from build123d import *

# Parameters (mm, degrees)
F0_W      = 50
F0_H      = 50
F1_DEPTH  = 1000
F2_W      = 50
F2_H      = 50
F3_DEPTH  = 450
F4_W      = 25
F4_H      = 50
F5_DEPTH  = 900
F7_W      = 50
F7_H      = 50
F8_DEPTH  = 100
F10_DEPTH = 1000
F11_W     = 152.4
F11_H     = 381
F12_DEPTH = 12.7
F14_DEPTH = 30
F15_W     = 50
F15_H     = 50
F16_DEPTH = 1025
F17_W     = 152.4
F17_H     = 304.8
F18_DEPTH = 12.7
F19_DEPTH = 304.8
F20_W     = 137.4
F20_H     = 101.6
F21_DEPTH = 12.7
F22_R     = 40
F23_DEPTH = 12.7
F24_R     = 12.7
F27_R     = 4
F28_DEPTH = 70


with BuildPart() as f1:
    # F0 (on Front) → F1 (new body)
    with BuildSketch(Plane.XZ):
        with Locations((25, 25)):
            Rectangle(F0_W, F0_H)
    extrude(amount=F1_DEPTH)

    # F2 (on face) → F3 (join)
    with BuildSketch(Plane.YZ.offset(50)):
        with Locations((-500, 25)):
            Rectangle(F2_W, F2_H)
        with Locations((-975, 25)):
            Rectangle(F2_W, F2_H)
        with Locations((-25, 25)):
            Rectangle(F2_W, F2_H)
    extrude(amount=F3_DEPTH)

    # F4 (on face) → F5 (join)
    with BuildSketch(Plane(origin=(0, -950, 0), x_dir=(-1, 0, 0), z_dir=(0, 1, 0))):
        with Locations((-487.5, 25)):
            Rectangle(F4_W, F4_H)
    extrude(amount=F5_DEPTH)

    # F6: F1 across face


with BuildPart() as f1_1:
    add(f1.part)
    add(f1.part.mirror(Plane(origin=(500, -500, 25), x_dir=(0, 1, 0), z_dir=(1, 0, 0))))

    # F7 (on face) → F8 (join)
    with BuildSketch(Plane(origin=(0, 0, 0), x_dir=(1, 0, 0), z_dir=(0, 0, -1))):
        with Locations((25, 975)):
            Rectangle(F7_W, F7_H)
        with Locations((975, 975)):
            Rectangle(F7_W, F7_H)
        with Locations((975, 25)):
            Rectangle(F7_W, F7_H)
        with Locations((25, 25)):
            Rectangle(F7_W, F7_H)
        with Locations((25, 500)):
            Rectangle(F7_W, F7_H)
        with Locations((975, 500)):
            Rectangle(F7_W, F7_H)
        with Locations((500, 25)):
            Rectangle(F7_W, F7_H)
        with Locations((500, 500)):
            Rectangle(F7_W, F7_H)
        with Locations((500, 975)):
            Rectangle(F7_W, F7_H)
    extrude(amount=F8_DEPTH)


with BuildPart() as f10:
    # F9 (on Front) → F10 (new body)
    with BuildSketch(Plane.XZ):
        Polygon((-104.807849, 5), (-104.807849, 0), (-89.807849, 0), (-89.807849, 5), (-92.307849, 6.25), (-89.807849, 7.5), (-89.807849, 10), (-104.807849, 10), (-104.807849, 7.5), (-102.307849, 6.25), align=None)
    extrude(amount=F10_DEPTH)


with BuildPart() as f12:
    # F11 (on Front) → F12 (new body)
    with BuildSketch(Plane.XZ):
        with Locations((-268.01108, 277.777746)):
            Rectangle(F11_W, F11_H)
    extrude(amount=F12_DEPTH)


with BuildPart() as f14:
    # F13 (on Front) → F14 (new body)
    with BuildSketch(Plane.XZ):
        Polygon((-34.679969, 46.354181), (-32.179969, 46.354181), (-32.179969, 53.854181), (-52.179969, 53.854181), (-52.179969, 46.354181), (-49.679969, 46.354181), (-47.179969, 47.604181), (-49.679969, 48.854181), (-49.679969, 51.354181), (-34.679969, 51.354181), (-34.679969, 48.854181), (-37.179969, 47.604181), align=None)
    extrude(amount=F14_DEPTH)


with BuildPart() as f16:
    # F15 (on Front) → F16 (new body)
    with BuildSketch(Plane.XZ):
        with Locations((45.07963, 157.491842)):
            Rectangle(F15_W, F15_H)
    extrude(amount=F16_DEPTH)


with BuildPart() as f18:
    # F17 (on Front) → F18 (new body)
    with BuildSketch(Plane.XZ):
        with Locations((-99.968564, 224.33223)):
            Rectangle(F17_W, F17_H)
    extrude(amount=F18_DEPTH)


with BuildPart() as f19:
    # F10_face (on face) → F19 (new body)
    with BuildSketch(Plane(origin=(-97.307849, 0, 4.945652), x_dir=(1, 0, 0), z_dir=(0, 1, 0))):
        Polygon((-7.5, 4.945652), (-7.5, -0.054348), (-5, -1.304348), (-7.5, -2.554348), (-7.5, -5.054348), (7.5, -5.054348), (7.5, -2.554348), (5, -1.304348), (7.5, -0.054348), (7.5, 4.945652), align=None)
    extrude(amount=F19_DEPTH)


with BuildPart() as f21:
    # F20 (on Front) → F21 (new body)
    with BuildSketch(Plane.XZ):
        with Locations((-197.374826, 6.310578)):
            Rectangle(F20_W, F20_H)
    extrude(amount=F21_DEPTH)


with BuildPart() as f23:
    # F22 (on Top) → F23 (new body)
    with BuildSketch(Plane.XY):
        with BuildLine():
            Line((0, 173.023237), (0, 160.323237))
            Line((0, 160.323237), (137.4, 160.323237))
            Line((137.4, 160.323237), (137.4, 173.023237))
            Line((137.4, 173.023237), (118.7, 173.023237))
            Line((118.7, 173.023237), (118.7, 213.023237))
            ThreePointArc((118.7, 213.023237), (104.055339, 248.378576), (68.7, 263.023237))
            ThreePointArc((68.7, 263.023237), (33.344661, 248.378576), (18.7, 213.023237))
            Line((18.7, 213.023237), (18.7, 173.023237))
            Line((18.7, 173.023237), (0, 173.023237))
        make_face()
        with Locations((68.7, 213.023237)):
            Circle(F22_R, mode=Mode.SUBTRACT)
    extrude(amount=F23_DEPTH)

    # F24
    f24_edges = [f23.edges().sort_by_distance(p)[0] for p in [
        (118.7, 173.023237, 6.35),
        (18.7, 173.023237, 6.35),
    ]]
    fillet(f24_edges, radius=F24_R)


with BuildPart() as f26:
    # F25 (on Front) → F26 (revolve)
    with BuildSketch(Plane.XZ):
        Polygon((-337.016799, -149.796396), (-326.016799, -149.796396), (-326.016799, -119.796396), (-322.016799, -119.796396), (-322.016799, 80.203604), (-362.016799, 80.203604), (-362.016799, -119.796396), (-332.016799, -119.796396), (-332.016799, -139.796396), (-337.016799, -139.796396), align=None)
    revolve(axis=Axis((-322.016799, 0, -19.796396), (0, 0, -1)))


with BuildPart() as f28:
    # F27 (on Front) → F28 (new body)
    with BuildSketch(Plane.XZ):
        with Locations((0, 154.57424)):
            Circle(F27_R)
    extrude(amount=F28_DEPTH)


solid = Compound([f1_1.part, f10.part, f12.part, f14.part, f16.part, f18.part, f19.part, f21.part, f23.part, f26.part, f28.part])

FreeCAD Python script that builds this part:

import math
import FreeCAD as App
import Part
import Sketcher
from FreeCAD import Vector


def edges_at(feature, points):
    """Names of the edges that pass closest to the given points."""
    edges = feature.Shape.Edges
    near = lambda p: min(range(len(edges)), key=lambda i: edges[i].distToShape(Part.Vertex(*p))[0])
    return sorted({f"Edge{near(p) + 1}" for p in points})

doc = App.newDocument("Part")
body = doc.addObject("PartDesign::Body", "Body")

# Sketch on XZ plane
sketch1 = doc.addObject("Sketcher::SketchObject", "Sketch")
body.addObject(sketch1)
sketch1.AttachmentSupport = (doc.XZ_Plane, [""])
sketch1.MapMode = "FlatFace"
sketch1.addGeometry([
    Part.LineSegment(Vector(0, 50, 0), Vector(0, 0, 0)),
    Part.LineSegment(Vector(0, 0, 0), Vector(50, 0, 0)),
    Part.LineSegment(Vector(50, 0, 0), Vector(50, 50, 0)),
    Part.LineSegment(Vector(50, 50, 0), Vector(0, 50, 0)),
], False)
sketch1.addConstraint([
    Sketcher.Constraint("Coincident", 0, 2, 1, 1),
    Sketcher.Constraint("Coincident", 1, 2, 2, 1),
    Sketcher.Constraint("Coincident", 2, 2, 3, 1),
    Sketcher.Constraint("Coincident", 3, 2, 0, 1),
    Sketcher.Constraint("Vertical", 0),
    Sketcher.Constraint("Horizontal", 1),
    Sketcher.Constraint("Vertical", 2),
    Sketcher.Constraint("Horizontal", 3),
    Sketcher.Constraint("Coincident", 0, 2, -1, 1),
    Sketcher.Constraint("Equal", 3, 0),
    Sketcher.Constraint("DistanceX", 1, 1, 1, 2, 50.0),
])
pad1 = doc.addObject("PartDesign::Pad", "Pad")
body.addObject(pad1)
pad1.Profile = sketch1
pad1.Length = 1000

# Sketch on YZ plane
sketch2 = doc.addObject("Sketcher::SketchObject", "Sketch001")
body.addObject(sketch2)
sketch2.AttachmentSupport = (doc.YZ_Plane, [""])
sketch2.MapMode = "FlatFace"
sketch2.AttachmentOffset = App.Placement(Vector(0, 0, 50), App.Rotation())
sketch2.addGeometry([
    Part.LineSegment(Vector(-525, 50, 0), Vector(-525, 0, 0)),  # 0
    Part.LineSegment(Vector(-525, 0, 0), Vector(-475, 0, 0)),  # 1
    Part.LineSegment(Vector(-475, 0, 0), Vector(-475, 50, 0)),  # 2
    Part.LineSegment(Vector(-475, 50, 0), Vector(-525, 50, 0)),  # 3
    Part.LineSegment(Vector(-1000, 50, 0), Vector(-1000, 0, 0)),  # 4
    Part.LineSegment(Vector(-1000, 0, 0), Vector(-950, 0, 0)),  # 5
    Part.LineSegment(Vector(-950, 0, 0), Vector(-950, 50, 0)),  # 6
    Part.LineSegment(Vector(-950, 50, 0), Vector(-1000, 50, 0)),  # 7
    Part.LineSegment(Vector(-50, 50, 0), Vector(-50, 0, 0)),  # 8
    Part.LineSegment(Vector(-50, 0, 0), Vector(0, 0, 0)),  # 9
    Part.LineSegment(Vector(0, 0, 0), Vector(0, 50, 0)),  # 10
    Part.LineSegment(Vector(0, 50, 0), Vector(-50, 50, 0)),  # 11
], False)
sketch2.addConstraint([
    Sketcher.Constraint("Coincident", 0, 2, 1, 1),
    Sketcher.Constraint("Coincident", 1, 2, 2, 1),
    Sketcher.Constraint("Coincident", 2, 2, 3, 1),
    Sketcher.Constraint("Coincident", 3, 2, 0, 1),
    Sketcher.Constraint("Coincident", 4, 2, 5, 1),
    Sketcher.Constraint("Coincident", 5, 2, 6, 1),
    Sketcher.Constraint("Coincident", 6, 2, 7, 1),
    Sketcher.Constraint("Coincident", 7, 2, 4, 1),
    Sketcher.Constraint("Coincident", 8, 2, 9, 1),
    Sketcher.Constraint("Coincident", 9, 2, 10, 1),
    Sketcher.Constraint("Coincident", 10, 2, 11, 1),
    Sketcher.Constraint("Coincident", 11, 2, 8, 1),
    Sketcher.Constraint("Vertical", 0),
    Sketcher.Constraint("Horizontal", 1),
    Sketcher.Constraint("Vertical", 2),
    Sketcher.Constraint("Horizontal", 3),
    Sketcher.Constraint("Vertical", 4),
    Sketcher.Constraint("Horizontal", 5),
    Sketcher.Constraint("Vertical", 6),
    Sketcher.Constraint("Horizontal", 7),
    Sketcher.Constraint("Vertical", 8),
    Sketcher.Constraint("Horizontal", 9),
    Sketcher.Constraint("Vertical", 10),
    Sketcher.Constraint("Horizontal", 11),
    Sketcher.Constraint("Coincident", 9, 2, -1, 1),
    Sketcher.Constraint("PointOnObject", 0, 2, -1),
    Sketcher.Constraint("PointOnObject", 4, 2, -1),
    Sketcher.Constraint("Horizontal", 3, 2, 6, 2),
    Sketcher.Constraint("Horizontal", 7, 2, 10, 2),
    Sketcher.Constraint("Equal", 3, 5),
    Sketcher.Constraint("Equal", 7, 9),
    Sketcher.Constraint("Equal", 11, 0),
    Sketcher.Constraint("DistanceX", 1, 1, 1, 2, 50.0),
    Sketcher.Constraint("DistanceX", 0, 2, -1, 1, 525.0),
    Sketcher.Constraint("DistanceX", 4, 2, -1, 1, 1000.0),
])
pad2 = doc.addObject("PartDesign::Pad", "Pad001")
body.addObject(pad2)
pad2.Profile = sketch2
pad2.Length = 450

# Sketch on XZ plane
sketch3 = doc.addObject("Sketcher::SketchObject", "Sketch002")
body.addObject(sketch3)
sketch3.AttachmentSupport = (doc.XZ_Plane, [""])
sketch3.MapMode = "FlatFace"
sketch3.AttachmentOffset = App.Placement(Vector(0, 0, 950), App.Rotation())
sketch3.addGeometry([
    Part.LineSegment(Vector(500, 50, 0), Vector(500, 0, 0)),
    Part.LineSegment(Vector(500, 0, 0), Vector(475, 0, 0)),
    Part.LineSegment(Vector(475, 0, 0), Vector(475, 50, 0)),
    Part.LineSegment(Vector(475, 50, 0), Vector(500, 50, 0)),
], False)
sketch3.addConstraint([
    Sketcher.Constraint("Coincident", 0, 2, 1, 1),
    Sketcher.Constraint("Coincident", 1, 2, 2, 1),
    Sketcher.Constraint("Coincident", 2, 2, 3, 1),
    Sketcher.Constraint("Coincident", 3, 2, 0, 1),
    Sketcher.Constraint("Vertical", 0),
    Sketcher.Constraint("Horizontal", 1),
    Sketcher.Constraint("Vertical", 2),
    Sketcher.Constraint("Horizontal", 3),
    Sketcher.Constraint("PointOnObject", 0, 2, -1),
    Sketcher.Constraint("DistanceX", 1, 2, 1, 1, 25.0),
    Sketcher.Constraint("DistanceY", 0, 2, 0, 1, 50.0),
    Sketcher.Constraint("DistanceX", -1, 1, 0, 2, 500.0),
])
pad3 = doc.addObject("PartDesign::Pad", "Pad002")
body.addObject(pad3)
pad3.Profile = sketch3
pad3.Length = 900
pad3.Reversed = True
body2 = doc.addObject("PartDesign::Body", "Body001")
doc.recompute()

body2.BaseFeature = body
doc.recompute()

mirroring = doc.addObject("Part::Mirroring", "Mirroring")
mirroring.Source = body
mirroring.Base = Vector(500, -500, 25)
mirroring.Normal = Vector(1, 0, 0)
body3 = doc.addObject("PartDesign::Body", "Body002")
body3.BaseFeature = mirroring
boolean = doc.addObject("PartDesign::Boolean", "Boolean")
body2.addObject(boolean)
boolean.Type = "Fuse"
boolean.addObjects([body3])
doc.recompute()

# Sketch on XY plane
sketch4 = doc.addObject("Sketcher::SketchObject", "Sketch003")
body2.addObject(sketch4)
sketch4.AttachmentSupport = (doc.getObject("XY_Plane001"), [""])
sketch4.MapMode = "FlatFace"
sketch4.addGeometry([
    Part.LineSegment(Vector(0, -1000, 0), Vector(0, -950, 0)),  # 0
    Part.LineSegment(Vector(0, -950, 0), Vector(50, -950, 0)),  # 1
    Part.LineSegment(Vector(50, -950, 0), Vector(50, -1000, 0)),  # 2
    Part.LineSegment(Vector(50, -1000, 0), Vector(0, -1000, 0)),  # 3
    Part.LineSegment(Vector(950, -1000, 0), Vector(950, -950, 0)),  # 4
    Part.LineSegment(Vector(950, -950, 0), Vector(1000, -950, 0)),  # 5
    Part.LineSegment(Vector(1000, -950, 0), Vector(1000, -1000, 0)),  # 6
    Part.LineSegment(Vector(1000, -1000, 0), Vector(950, -1000, 0)),  # 7
    Part.LineSegment(Vector(950, -50, 0), Vector(950, 0, 0)),  # 8
    Part.LineSegment(Vector(950, 0, 0), Vector(1000, 0, 0)),  # 9
    Part.LineSegment(Vector(1000, 0, 0), Vector(1000, -50, 0)),  # 10
    Part.LineSegment(Vector(1000, -50, 0), Vector(950, -50, 0)),  # 11
    Part.LineSegment(Vector(0, -50, 0), Vector(0, 0, 0)),  # 12
    Part.LineSegment(Vector(0, 0, 0), Vector(50, 0, 0)),  # 13
    Part.LineSegment(Vector(50, 0, 0), Vector(50, -50, 0)),  # 14
    Part.LineSegment(Vector(50, -50, 0), Vector(0, -50, 0)),  # 15
    Part.LineSegment(Vector(0, -525, 0), Vector(0, -475, 0)),  # 16
    Part.LineSegment(Vector(0, -475, 0), Vector(50, -475, 0)),  # 17
    Part.LineSegment(Vector(50, -475, 0), Vector(50, -525, 0)),  # 18
    Part.LineSegment(Vector(50, -525, 0), Vector(0, -525, 0)),  # 19
    Part.LineSegment(Vector(950, -525, 0), Vector(950, -475, 0)),  # 20
    Part.LineSegment(Vector(950, -475, 0), Vector(1000, -475, 0)),  # 21
    Part.LineSegment(Vector(1000, -475, 0), Vector(1000, -525, 0)),  # 22
    Part.LineSegment(Vector(1000, -525, 0), Vector(950, -525, 0)),  # 23
    Part.LineSegment(Vector(475, -50, 0), Vector(475, 0, 0)),  # 24
    Part.LineSegment(Vector(475, 0, 0), Vector(525, 0, 0)),  # 25
    Part.LineSegment(Vector(525, 0, 0), Vector(525, -50, 0)),  # 26
    Part.LineSegment(Vector(525, -50, 0), Vector(475, -50, 0)),  # 27
    Part.LineSegment(Vector(475, -525, 0), Vector(475, -475, 0)),  # 28
    Part.LineSegment(Vector(475, -475, 0), Vector(525, -475, 0)),  # 29
    Part.LineSegment(Vector(525, -475, 0), Vector(525, -525, 0)),  # 30
    Part.LineSegment(Vector(525, -525, 0), Vector(475, -525, 0)),  # 31
    Part.LineSegment(Vector(475, -1000, 0), Vector(475, -950, 0)),  # 32
    Part.LineSegment(Vector(475, -950, 0), Vector(525, -950, 0)),  # 33
    Part.LineSegment(Vector(525, -950, 0), Vector(525, -1000, 0)),  # 34
    Part.LineSegment(Vector(525, -1000, 0), Vector(475, -1000, 0)),  # 35
], False)
sketch4.addConstraint([
    Sketcher.Constraint("Coincident", 0, 2, 1, 1),
    Sketcher.Constraint("Coincident", 1, 2, 2, 1),
    Sketcher.Constraint("Coincident", 2, 2, 3, 1),
    Sketcher.Constraint("Coincident", 3, 2, 0, 1),
    Sketcher.Constraint("Coincident", 4, 2, 5, 1),
    Sketcher.Constraint("Coincident", 5, 2, 6, 1),
    Sketcher.Constraint("Coincident", 6, 2, 7, 1),
    Sketcher.Constraint("Coincident", 7, 2, 4, 1),
    Sketcher.Constraint("Coincident", 8, 2, 9, 1),
    Sketcher.Constraint("Coincident", 9, 2, 10, 1),
    Sketcher.Constraint("Coincident", 10, 2, 11, 1),
    Sketcher.Constraint("Coincident", 11, 2, 8, 1),
    Sketcher.Constraint("Coincident", 12, 2, 13, 1),
    Sketcher.Constraint("Coincident", 13, 2, 14, 1),
    Sketcher.Constraint("Coincident", 14, 2, 15, 1),
    Sketcher.Constraint("Coincident", 15, 2, 12, 1),
    Sketcher.Constraint("Coincident", 16, 2, 17, 1),
    Sketcher.Constraint("Coincident", 17, 2, 18, 1),
    Sketcher.Constraint("Coincident", 18, 2, 19, 1),
    Sketcher.Constraint("Coincident", 19, 2, 16, 1),
    Sketcher.Constraint("Coincident", 20, 2, 21, 1),
    Sketcher.Constraint("Coincident", 21, 2, 22, 1),
    Sketcher.Constraint("Coincident", 22, 2, 23, 1),
    Sketcher.Constraint("Coincident", 23, 2, 20, 1),
    Sketcher.Constraint("Coincident", 24, 2, 25, 1),
    Sketcher.Constraint("Coincident", 25, 2, 26, 1),
    Sketcher.Constraint("Coincident", 26, 2, 27, 1),
    Sketcher.Constraint("Coincident", 27, 2, 24, 1),
    Sketcher.Constraint("Coincident", 28, 2, 29, 1),
    Sketcher.Constraint("Coincident", 29, 2, 30, 1),
    Sketcher.Constraint("Coincident", 30, 2, 31, 1),
    Sketcher.Constraint("Coincident", 31, 2, 28, 1),
    Sketcher.Constraint("Coincident", 32, 2, 33, 1),
    Sketcher.Constraint("Coincident", 33, 2, 34, 1),
    Sketcher.Constraint("Coincident", 34, 2, 35, 1),
    Sketcher.Constraint("Coincident", 35, 2, 32, 1),
    Sketcher.Constraint("Vertical", 0),
    Sketcher.Constraint("Horizontal", 1),
    Sketcher.Constraint("Vertical", 2),
    Sketcher.Constraint("Horizontal", 3),
    Sketcher.Constraint("Vertical", 4),
    Sketcher.Constraint("Horizontal", 5),
    Sketcher.Constraint("Vertical", 6),
    Sketcher.Constraint("Horizontal", 7),
    Sketcher.Constraint("Vertical", 8),
    Sketcher.Constraint("Horizontal", 9),
    Sketcher.Constraint("Vertical", 10),
    Sketcher.Constraint("Horizontal", 11),
    Sketcher.Constraint("Vertical", 12),
    Sketcher.Constraint("Horizontal", 13),
    Sketcher.Constraint("Vertical", 14),
    Sketcher.Constraint("Horizontal", 15),
    Sketcher.Constraint("Vertical", 16),
    Sketcher.Constraint("Horizontal", 17),
    Sketcher.Constraint("Vertical", 18),
    Sketcher.Constraint("Horizontal", 19),
    Sketcher.Constraint("Vertical", 20),
    Sketcher.Constraint("Horizontal", 21),
    Sketcher.Constraint("Vertical", 22),
    Sketcher.Constraint("Horizontal", 23),
    Sketcher.Constraint("Vertical", 24),
    Sketcher.Constraint("Horizontal", 25),
    Sketcher.Constraint("Vertical", 26),
    Sketcher.Constraint("Horizontal", 27),
    Sketcher.Constraint("Vertical", 28),
    Sketcher.Constraint("Horizontal", 29),
    Sketcher.Constraint("Vertical", 30),
    Sketcher.Constraint("Horizontal", 31),
    Sketcher.Constraint("Vertical", 32),
    Sketcher.Constraint("Horizontal", 33),
    Sketcher.Constraint("Vertical", 34),
    Sketcher.Constraint("Horizontal", 35),
    Sketcher.Constraint("Coincident", 12, 2, -1, 1),
    Sketcher.Constraint("PointOnObject", 0, 2, -2),
    Sketcher.Constraint("PointOnObject", 8, 2, -1),
    Sketcher.Constraint("PointOnObject", 16, 2, -2),
    Sketcher.Constraint("PointOnObject", 24, 2, -1),
    Sketcher.Constraint("Horizontal", 1, 2, 4, 2),
    Sketcher.Constraint("Horizontal", 3, 2, 6, 2),
    Sketcher.Constraint("Horizontal", 11, 2, 14, 2),
    Sketcher.Constraint("Horizontal", 17, 2, 20, 2),
    Sketcher.Constraint("Horizontal", 19, 2, 22, 2),
    Sketcher.Constraint("Horizontal", 15, 2, 26, 2),
    Sketcher.Constraint("Horizontal", 21, 2, 28, 2),
    Sketcher.Constraint("Horizontal", 23, 2, 30, 2),
    Sketcher.Constraint("Horizontal", 5, 2, 32, 2),
    Sketcher.Constraint("Horizontal", 7, 2, 34, 2),
    Sketcher.Constraint("Vertical", 7, 2, 8, 2),
    Sketcher.Constraint("Vertical", 6, 2, 9, 2),
    Sketcher.Constraint("Vertical", 2, 2, 13, 2),
    Sketcher.Constraint("Vertical", 14, 2, 17, 2),
    Sketcher.Constraint("Vertical", 11, 2, 20, 2),
    Sketcher.Constraint("Vertical", 10, 2, 21, 2),
    Sketcher.Constraint("Vertical", 27, 2, 28, 2),
    Sketcher.Constraint("Vertical", 26, 2, 29, 2),
    Sketcher.Constraint("Vertical", 31, 2, 32, 2),
    Sketcher.Constraint("Vertical", 30, 2, 33, 2),
    Sketcher.Constraint("Equal", 3, 5),
    Sketcher.Constraint("Equal", 23, 25),
    Sketcher.Constraint("Equal", 35, 0),
    Sketcher.Constraint("Equal", 6, 8),
    Sketcher.Constraint("Equal", 14, 16),
    Sketcher.Constraint("DistanceX", 1, 1, 1, 2, 50.0),
    Sketcher.Constraint("DistanceY", 0, 2, -1, 1, 950.0),
    Sketcher.Constraint("DistanceX", -1, 1, 4, 2, 950.0),
    Sketcher.Constraint("DistanceY", 16, 2, -1, 1, 475.0),
    Sketcher.Constraint("DistanceX", -1, 1, 24, 2, 475.0),
])
pad4 = doc.addObject("PartDesign::Pad", "Pad003")
body2.addObject(pad4)
pad4.Profile = sketch4
pad4.Length = 100
pad4.Reversed = True
body4 = doc.addObject("PartDesign::Body", "Body003")

# Sketch on XZ plane
sketch5 = doc.addObject("Sketcher::SketchObject", "Sketch004")
body4.addObject(sketch5)
sketch5.AttachmentSupport = (doc.getObject("XZ_Plane003"), [""])
sketch5.MapMode = "FlatFace"
sketch5.addGeometry([
    Part.LineSegment(Vector(-104.8, 5, 0), Vector(-104.8, 0, 0)),  # 0
    Part.LineSegment(Vector(-104.8, 0, 0), Vector(-89.8, 0, 0)),  # 1
    Part.LineSegment(Vector(-89.8, 0, 0), Vector(-89.8, 5, 0)),  # 2
    Part.LineSegment(Vector(-89.8, 5, 0), Vector(-92.3, 6.2, 0)),  # 3
    Part.LineSegment(Vector(-92.3, 6.2, 0), Vector(-89.8, 7.5, 0)),  # 4
    Part.LineSegment(Vector(-89.8, 7.5, 0), Vector(-89.8, 10, 0)),  # 5
    Part.LineSegment(Vector(-89.8, 10, 0), Vector(-104.8, 10, 0)),  # 6
    Part.LineSegment(Vector(-104.8, 10, 0), Vector(-104.8, 7.5, 0)),  # 7
    Part.LineSegment(Vector(-104.8, 7.5, 0), Vector(-102.3, 6.2, 0)),  # 8
    Part.LineSegment(Vector(-102.3, 6.2, 0), Vector(-104.8, 5, 0)),  # 9
], False)
sketch5.addConstraint([
    Sketcher.Constraint("Coincident", 0, 2, 1, 1),
    Sketcher.Constraint("Coincident", 1, 2, 2, 1),
    Sketcher.Constraint("Coincident", 2, 2, 3, 1),
    Sketcher.Constraint("Coincident", 3, 2, 4, 1),
    Sketcher.Constraint("Coincident", 4, 2, 5, 1),
    Sketcher.Constraint("Coincident", 5, 2, 6, 1),
    Sketcher.Constraint("Coincident", 6, 2, 7, 1),
    Sketcher.Constraint("Coincident", 7, 2, 8, 1),
    Sketcher.Constraint("Coincident", 8, 2, 9, 1),
    Sketcher.Constraint("Coincident", 9, 2, 0, 1),
    Sketcher.Constraint("Vertical", 0),
    Sketcher.Constraint("Horizontal", 1),
    Sketcher.Constraint("Vertical", 2),
    Sketcher.Constraint("Vertical", 5),
    Sketcher.Constraint("Horizontal", 6),
    Sketcher.Constraint("Vertical", 7),
    Sketcher.Constraint("PointOnObject", 0, 2, -1),
    Sketcher.Constraint("Parallel", 3, 8),
    Sketcher.Constraint("Parallel", 4, 9),
    Sketcher.Constraint("Horizontal", 4, 2, 7, 2),
    Sketcher.Constraint("Horizontal", 3, 2, 8, 2),
    Sketcher.Constraint("Horizontal", 2, 2, 9, 2),
    Sketcher.Constraint("Vertical", 2, 2, 4, 2),
    Sketcher.Constraint("Vertical", 0, 2, 6, 2),
    Sketcher.Constraint("DistanceX", 1, 1, 1, 2, 15.0),
    Sketcher.Constraint("DistanceY", 0, 2, 0, 1, 5.0),
    Sketcher.Constraint("DistanceY", 5, 1, 5, 2, 2.5),
    Sketcher.Constraint("DistanceY", -1, 1, 5, 2, 10.0),
    Sketcher.Constraint("DistanceX", 8, 2, 3, 2, 10.0),
    Sketcher.Constraint("DistanceX", 0, 2, -1, 1, 104.807849),
])
pad5 = doc.addObject("PartDesign::Pad", "Pad004")
body4.addObject(pad5)
pad5.Profile = sketch5
pad5.Length = 1000
body5 = doc.addObject("PartDesign::Body", "Body004")

# Sketch on XZ plane
sketch6 = doc.addObject("Sketcher::SketchObject", "Sketch005")
body5.addObject(sketch6)
sketch6.AttachmentSupport = (doc.getObject("XZ_Plane004"), [""])
sketch6.MapMode = "FlatFace"
sketch6.addGeometry([
    Part.LineSegment(Vector(-344, 468, 0), Vector(-344, 87, 0)),
    Part.LineSegment(Vector(-344, 87, 0), Vector(-192, 87, 0)),
    Part.LineSegment(Vector(-192, 87, 0), Vector(-192, 468, 0)),
    Part.LineSegment(Vector(-192, 468, 0), Vector(-344, 468, 0)),
], False)
sketch6.addConstraint([
    Sketcher.Constraint("Coincident", 0, 2, 1, 1),
    Sketcher.Constraint("Coincident", 1, 2, 2, 1),
    Sketcher.Constraint("Coincident", 2, 2, 3, 1),
    Sketcher.Constraint("Coincident", 3, 2, 0, 1),
    Sketcher.Constraint("Vertical", 0),
    Sketcher.Constraint("Horizontal", 1),
    Sketcher.Constraint("Vertical", 2),
    Sketcher.Constraint("Horizontal", 3),
    Sketcher.Constraint("DistanceY", 0, 2, 0, 1, 381.0),
    Sketcher.Constraint("DistanceX", 1, 1, 1, 2, 152.4),
    Sketcher.Constraint("DistanceX", 0, 2, -1, 1, 344.21108),
    Sketcher.Constraint("DistanceY", -1, 1, 0, 2, 87.277746),
])
pad6 = doc.addObject("PartDesign::Pad", "Pad005")
body5.addObject(pad6)
pad6.Profile = sketch6
pad6.Length = 12.7
body6 = doc.addObject("PartDesign::Body", "Body005")

# Sketch on XZ plane
sketch7 = doc.addObject("Sketcher::SketchObject", "Sketch006")
body6.addObject(sketch7)
sketch7.AttachmentSupport = (doc.getObject("XZ_Plane005"), [""])
sketch7.MapMode = "FlatFace"
sketch7.addGeometry([
    Part.LineSegment(Vector(-34.7, 46.4, 0), Vector(-32.2, 46.4, 0)),  # 0
    Part.LineSegment(Vector(-32.2, 46.4, 0), Vector(-32.2, 53.9, 0)),  # 1
    Part.LineSegment(Vector(-32.2, 53.9, 0), Vector(-52.2, 53.9, 0)),  # 2
    Part.LineSegment(Vector(-52.2, 53.9, 0), Vector(-52.2, 46.4, 0)),  # 3
    Part.LineSegment(Vector(-52.2, 46.4, 0), Vector(-49.7, 46.4, 0)),  # 4
    Part.LineSegment(Vector(-49.7, 46.4, 0), Vector(-47.2, 47.6, 0)),  # 5
    Part.LineSegment(Vector(-47.2, 47.6, 0), Vector(-49.7, 48.9, 0)),  # 6
    Part.LineSegment(Vector(-49.7, 48.9, 0), Vector(-49.7, 51.4, 0)),  # 7
    Part.LineSegment(Vector(-49.7, 51.4, 0), Vector(-34.7, 51.4, 0)),  # 8
    Part.LineSegment(Vector(-34.7, 51.4, 0), Vector(-34.7, 48.9, 0)),  # 9
    Part.LineSegment(Vector(-34.7, 48.9, 0), Vector(-37.2, 47.6, 0)),  # 10
    Part.LineSegment(Vector(-37.2, 47.6, 0), Vector(-34.7, 46.4, 0)),  # 11
], False)
sketch7.addConstraint([
    Sketcher.Constraint("Coincident", 0, 2, 1, 1),
    Sketcher.Constraint("Coincident", 1, 2, 2, 1),
    Sketcher.Constraint("Coincident", 2, 2, 3, 1),
    Sketcher.Constraint("Coincident", 3, 2, 4, 1),
    Sketcher.Constraint("Coincident", 4, 2, 5, 1),
    Sketcher.Constraint("Coincident", 5, 2, 6, 1),
    Sketcher.Constraint("Coincident", 6, 2, 7, 1),
    Sketcher.Constraint("Coincident", 7, 2, 8, 1),
    Sketcher.Constraint("Coincident", 8, 2, 9, 1),
    Sketcher.Constraint("Coincident", 9, 2, 10, 1),
    Sketcher.Constraint("Coincident", 10, 2, 11, 1),
    Sketcher.Constraint("Coincident", 11, 2, 0, 1),
    Sketcher.Constraint("Horizontal", 0),
    Sketcher.Constraint("Vertical", 1),
    Sketcher.Constraint("Horizontal", 2),
    Sketcher.Constraint("Vertical", 3),
    Sketcher.Constraint("Horizontal", 4),
    Sketcher.Constraint("Vertical", 7),
    Sketcher.Constraint("Horizontal", 8),
    Sketcher.Constraint("Vertical", 9),
    Sketcher.Constraint("Parallel", 5, 10),
    Sketcher.Constraint("Parallel", 6, 11),
    Sketcher.Constraint("Horizontal", 0, 2, 3, 2),
    Sketcher.Constraint("Horizontal", 6, 2, 9, 2),
    Sketcher.Constraint("Horizontal", 5, 2, 10, 2),
    Sketcher.Constraint("Vertical", 4, 2, 6, 2),
    Sketcher.Constraint("Vertical", 9, 2, 11, 2),
    Sketcher.Constraint("Equal", 0, 4),
    Sketcher.Constraint("Equal", 4, 7),
    Sketcher.Constraint("DistanceX", 2, 2, 2, 1, 20.0),
    Sketcher.Constraint("DistanceX", 8, 1, 8, 2, 15.0),
    Sketcher.Constraint("DistanceY", 1, 1, 1, 2, 7.5),
    Sketcher.Constraint("DistanceX", 3, 2, 5, 2, 5.0),
    Sketcher.Constraint("DistanceY", 6, 2, 2, 2, 5.0),
    Sketcher.Constraint("DistanceX", 0, 2, -1, 1, 32.179969),
    Sketcher.Constraint("DistanceY", -1, 1, 0, 2, 46.354181),
])
pad7 = doc.addObject("PartDesign::Pad", "Pad006")
body6.addObject(pad7)
pad7.Profile = sketch7
pad7.Length = 30
body7 = doc.addObject("PartDesign::Body", "Body006")

# Sketch on XZ plane
sketch8 = doc.addObject("Sketcher::SketchObject", "Sketch007")
body7.addObject(sketch8)
sketch8.AttachmentSupport = (doc.getObject("XZ_Plane006"), [""])
sketch8.MapMode = "FlatFace"
sketch8.addGeometry([
    Part.LineSegment(Vector(20, 182, 0), Vector(20, 132, 0)),
    Part.LineSegment(Vector(20, 132, 0), Vector(70, 132, 0)),
    Part.LineSegment(Vector(70, 132, 0), Vector(70, 182, 0)),
    Part.LineSegment(Vector(70, 182, 0), Vector(20, 182, 0)),
], False)
sketch8.addConstraint([
    Sketcher.Constraint("Coincident", 0, 2, 1, 1),
    Sketcher.Constraint("Coincident", 1, 2, 2, 1),
    Sketcher.Constraint("Coincident", 2, 2, 3, 1),
    Sketcher.Constraint("Coincident", 3, 2, 0, 1),
    Sketcher.Constraint("Vertical", 0),
    Sketcher.Constraint("Horizontal", 1),
    Sketcher.Constraint("Vertical", 2),
    Sketcher.Constraint("Horizontal", 3),
    Sketcher.Constraint("Equal", 3, 0),
    Sketcher.Constraint("DistanceX", 1, 1, 1, 2, 50.0),
    Sketcher.Constraint("DistanceX", -1, 1, 0, 2, 20.07963),
    Sketcher.Constraint("DistanceY", -1, 1, 0, 2, 132.491842),
])
pad8 = doc.addObject("PartDesign::Pad", "Pad007")
body7.addObject(pad8)
pad8.Profile = sketch8
pad8.Length = 1025
body8 = doc.addObject("PartDesign::Body", "Body007")

# Sketch on XZ plane
sketch9 = doc.addObject("Sketcher::SketchObject", "Sketch008")
body8.addObject(sketch9)
sketch9.AttachmentSupport = (doc.getObject("XZ_Plane007"), [""])
sketch9.MapMode = "FlatFace"
sketch9.addGeometry([
    Part.LineSegment(Vector(-176, 377, 0), Vector(-176, 72, 0)),
    Part.LineSegment(Vector(-176, 72, 0), Vector(-24, 72, 0)),
    Part.LineSegment(Vector(-24, 72, 0), Vector(-24, 377, 0)),
    Part.LineSegment(Vector(-24, 377, 0), Vector(-176, 377, 0)),
], False)
sketch9.addConstraint([
    Sketcher.Constraint("Coincident", 0, 2, 1, 1),
    Sketcher.Constraint("Coincident", 1, 2, 2, 1),
    Sketcher.Constraint("Coincident", 2, 2, 3, 1),
    Sketcher.Constraint("Coincident", 3, 2, 0, 1),
    Sketcher.Constraint("Vertical", 0),
    Sketcher.Constraint("Horizontal", 1),
    Sketcher.Constraint("Vertical", 2),
    Sketcher.Constraint("Horizontal", 3),
    Sketcher.Constraint("DistanceX", 1, 1, 1, 2, 152.4),
    Sketcher.Constraint("DistanceY", 0, 2, 0, 1, 304.8),
    Sketcher.Constraint("DistanceY", -1, 1, 0, 2, 71.93223),
    Sketcher.Constraint("DistanceX", 0, 2, -1, 1, 176.168564),
])
pad9 = doc.addObject("PartDesign::Pad", "Pad008")
body8.addObject(pad9)
pad9.Profile = sketch9
pad9.Length = 12.7
body9 = doc.addObject("PartDesign::Body", "Body008")

# Sketch on XZ plane
sketch10 = doc.addObject("Sketcher::SketchObject", "Sketch009")
body9.addObject(sketch10)
sketch10.AttachmentSupport = (doc.getObject("XZ_Plane008"), [""])
sketch10.MapMode = "FlatFace"
sketch10.addGeometry([
    Part.LineSegment(Vector(-104.8, 0, 0), Vector(-104.8, 5, 0)),  # 0
    Part.LineSegment(Vector(-104.8, 5, 0), Vector(-102.3, 6.2, 0)),  # 1
    Part.LineSegment(Vector(-102.3, 6.2, 0), Vector(-104.8, 7.5, 0)),  # 2
    Part.LineSegment(Vector(-104.8, 7.5, 0), Vector(-104.8, 10, 0)),  # 3
    Part.LineSegment(Vector(-104.8, 10, 0), Vector(-89.8, 10, 0)),  # 4
    Part.LineSegment(Vector(-89.8, 10, 0), Vector(-89.8, 7.5, 0)),  # 5
    Part.LineSegment(Vector(-89.8, 7.5, 0), Vector(-92.3, 6.2, 0)),  # 6
    Part.LineSegment(Vector(-92.3, 6.2, 0), Vector(-89.8, 5, 0)),  # 7
    Part.LineSegment(Vector(-89.8, 5, 0), Vector(-89.8, 0, 0)),  # 8
    Part.LineSegment(Vector(-89.8, 0, 0), Vector(-104.8, 0, 0)),  # 9
], False)
sketch10.addConstraint([
    Sketcher.Constraint("Coincident", 0, 2, 1, 1),
    Sketcher.Constraint("Coincident", 1, 2, 2, 1),
    Sketcher.Constraint("Coincident", 2, 2, 3, 1),
    Sketcher.Constraint("Coincident", 3, 2, 4, 1),
    Sketcher.Constraint("Coincident", 4, 2, 5, 1),
    Sketcher.Constraint("Coincident", 5, 2, 6, 1),
    Sketcher.Constraint("Coincident", 6, 2, 7, 1),
    Sketcher.Constraint("Coincident", 7, 2, 8, 1),
    Sketcher.Constraint("Coincident", 8, 2, 9, 1),
    Sketcher.Constraint("Coincident", 9, 2, 0, 1),
    Sketcher.Constraint("Vertical", 0),
    Sketcher.Constraint("Vertical", 3),
    Sketcher.Constraint("Horizontal", 4),
    Sketcher.Constraint("Vertical", 5),
    Sketcher.Constraint("Vertical", 8),
    Sketcher.Constraint("Horizontal", 9),
    Sketcher.Constraint("PointOnObject", 8, 2, -1),
    Sketcher.Constraint("Parallel", 1, 6),
    Sketcher.Constraint("Parallel", 2, 7),
    Sketcher.Constraint("Horizontal", 2, 2, 5, 2),
    Sketcher.Constraint("Horizontal", 1, 2, 6, 2),
    Sketcher.Constraint("Horizontal", 0, 2, 7, 2),
    Sketcher.Constraint("Vertical", 0, 2, 2, 2),
    Sketcher.Constraint("Vertical", 5, 2, 7, 2),
    Sketcher.Constraint("DistanceX", 4, 1, 4, 2, 15.0),
    Sketcher.Constraint("DistanceY", 0, 1, 0, 2, 5.0),
    Sketcher.Constraint("DistanceY", 3, 1, 3, 2, 2.5),
    Sketcher.Constraint("DistanceY", -1, 1, 3, 2, 10.0),
    Sketcher.Constraint("DistanceX", 1, 2, 6, 2, 10.0),
    Sketcher.Constraint("DistanceX", 0, 2, -1, 1, 104.807849),
])
pad10 = doc.addObject("PartDesign::Pad", "Pad009")
body9.addObject(pad10)
pad10.Profile = sketch10
pad10.Length = 304.8
pad10.Reversed = True
body10 = doc.addObject("PartDesign::Body", "Body009")

# Sketch on XZ plane
sketch11 = doc.addObject("Sketcher::SketchObject", "Sketch010")
body10.addObject(sketch11)
sketch11.AttachmentSupport = (doc.getObject("XZ_Plane009"), [""])
sketch11.MapMode = "FlatFace"
sketch11.addGeometry([
    Part.LineSegment(Vector(-266, 57, 0), Vector(-266, -44, 0)),
    Part.LineSegment(Vector(-266, -44, 0), Vector(-129, -44, 0)),
    Part.LineSegment(Vector(-129, -44, 0), Vector(-129, 57, 0)),
    Part.LineSegment(Vector(-129, 57, 0), Vector(-266, 57, 0)),
], False)
sketch11.addConstraint([
    Sketcher.Constraint("Coincident", 0, 2, 1, 1),
    Sketcher.Constraint("Coincident", 1, 2, 2, 1),
    Sketcher.Constraint("Coincident", 2, 2, 3, 1),
    Sketcher.Constraint("Coincident", 3, 2, 0, 1),
    Sketcher.Constraint("Vertical", 0),
    Sketcher.Constraint("Horizontal", 1),
    Sketcher.Constraint("Vertical", 2),
    Sketcher.Constraint("Horizontal", 3),
    Sketcher.Constraint("DistanceX", 1, 1, 1, 2, 137.4),
    Sketcher.Constraint("DistanceY", 0, 2, 0, 1, 101.6),
    Sketcher.Constraint("DistanceY", 0, 2, -1, 1, 44.489422),
    Sketcher.Constraint("DistanceX", 0, 2, -1, 1, 266.074826),
])
pad11 = doc.addObject("PartDesign::Pad", "Pad010")
body10.addObject(pad11)
pad11.Profile = sketch11
pad11.Length = 12.7
body11 = doc.addObject("PartDesign::Body", "Body010")

# Sketch on XY plane
sketch12 = doc.addObject("Sketcher::SketchObject", "Sketch011")
body11.addObject(sketch12)
sketch12.AttachmentSupport = (doc.getObject("XY_Plane010"), [""])
sketch12.MapMode = "FlatFace"
sketch12.addGeometry([
    Part.LineSegment(Vector(0, 173, 0), Vector(0, 160, 0)),  # 0
    Part.LineSegment(Vector(0, 160, 0), Vector(137, 160, 0)),  # 1
    Part.LineSegment(Vector(137, 160, 0), Vector(137, 173, 0)),  # 2
    Part.LineSegment(Vector(137, 173, 0), Vector(119, 173, 0)),  # 3
    Part.LineSegment(Vector(119, 173, 0), Vector(119, 213, 0)),  # 4
    Part.ArcOfCircle(Part.Circle(Vector(69, 213, 0), Vector(0, 0, 1), 50), math.radians(0), math.radians(90)),  # 5
    Part.ArcOfCircle(Part.Circle(Vector(69, 213, 0), Vector(0, 0, 1), 50), math.radians(90), math.radians(180)),  # 6
    Part.LineSegment(Vector(19, 213, 0), Vector(19, 173, 0)),  # 7
    Part.LineSegment(Vector(19, 173, 0), Vector(0, 173, 0)),  # 8
    Part.Circle(Vector(69, 213, 0), Vector(0, 0, 1), 40),  # 9
], False)
sketch12.addConstraint([
    Sketcher.Constraint("Coincident", 0, 2, 1, 1),
    Sketcher.Constraint("Coincident", 1, 2, 2, 1),
    Sketcher.Constraint("Coincident", 2, 2, 3, 1),
    Sketcher.Constraint("Coincident", 3, 2, 4, 1),
    Sketcher.Constraint("Tangent", 4, 2, 5, 1),
    Sketcher.Constraint("Tangent", 5, 2, 6, 1),
    Sketcher.Constraint("Tangent", 6, 2, 7, 1),
    Sketcher.Constraint("Coincident", 7, 2, 8, 1),
    Sketcher.Constraint("Coincident", 8, 2, 0, 1),
    Sketcher.Constraint("Vertical", 0),
    Sketcher.Constraint("Horizontal", 1),
    Sketcher.Constraint("Vertical", 2),
    Sketcher.Constraint("Horizontal", 3),
    Sketcher.Constraint("Vertical", 4),
    Sketcher.Constraint("Vertical", 7),
    Sketcher.Constraint("Horizontal", 8),
    Sketcher.Constraint("Coincident", 9, 3, 5, 3),
    Sketcher.Constraint("Equal", 5, 6),
    Sketcher.Constraint("PointOnObject", 0, 2, -2),
    Sketcher.Constraint("Horizontal", 3, 2, 7, 2),
    Sketcher.Constraint("Vertical", 9, 3, 5, 2),
    Sketcher.Constraint("Equal", 3, 8),
    Sketcher.Constraint("Diameter", 9, 80.0),
    Sketcher.Constraint("Radius", 5, 50.0),
    Sketcher.Constraint("DistanceY", 4, 1, 4, 2, 40.0),
    Sketcher.Constraint("DistanceX", 1, 1, 1, 2, 137.4),
    Sketcher.Constraint("DistanceY", 0, 2, 0, 1, 12.7),
    Sketcher.Constraint("DistanceY", -1, 1, 5, 3, 213.023237),
])
pad12 = doc.addObject("PartDesign::Pad", "Pad011")
body11.addObject(pad12)
pad12.Profile = sketch12
pad12.Length = 12.7
doc.recompute()

fillet = doc.addObject("PartDesign::Fillet", "Fillet")
body11.addObject(fillet)
fillet.Base = (pad12, edges_at(pad12, [(118.7, 173.023, 6.35), (18.7, 173.023, 6.35)]))
fillet.Radius = 12.7
body12 = doc.addObject("PartDesign::Body", "Body011")

# Sketch on XZ plane
sketch13 = doc.addObject("Sketcher::SketchObject", "Sketch012")
body12.addObject(sketch13)
sketch13.AttachmentSupport = (doc.getObject("XZ_Plane011"), [""])
sketch13.MapMode = "FlatFace"
sketch13.addGeometry([
    Part.LineSegment(Vector(-337, -149.8, 0), Vector(-326, -149.8, 0)),  # 0
    Part.LineSegment(Vector(-326, -149.8, 0), Vector(-326, -119.8, 0)),  # 1
    Part.LineSegment(Vector(-326, -119.8, 0), Vector(-322, -119.8, 0)),  # 2
    Part.LineSegment(Vector(-322, -119.8, 0), Vector(-322, 80.2, 0)),  # 3
    Part.LineSegment(Vector(-322, 80.2, 0), Vector(-362, 80.2, 0)),  # 4
    Part.LineSegment(Vector(-362, 80.2, 0), Vector(-362, -119.8, 0)),  # 5
    Part.LineSegment(Vector(-362, -119.8, 0), Vector(-332, -119.8, 0)),  # 6
    Part.LineSegment(Vector(-332, -119.8, 0), Vector(-332, -139.8, 0)),  # 7
    Part.LineSegment(Vector(-332, -139.8, 0), Vector(-337, -139.8, 0)),  # 8
    Part.LineSegment(Vector(-337, -139.8, 0), Vector(-337, -149.8, 0)),  # 9
], False)
sketch13.addGeometry(Part.LineSegment(Vector(-322, 80.2, 0), Vector(-322, -149.8, 0)), True)  # axis
sketch13.addConstraint([
    Sketcher.Constraint("Coincident", 0, 2, 1, 1),
    Sketcher.Constraint("Coincident", 1, 2, 2, 1),
    Sketcher.Constraint("Coincident", 2, 2, 3, 1),
    Sketcher.Constraint("Coincident", 3, 2, 4, 1),
    Sketcher.Constraint("Coincident", 4, 2, 5, 1),
    Sketcher.Constraint("Coincident", 5, 2, 6, 1),
    Sketcher.Constraint("Coincident", 6, 2, 7, 1),
    Sketcher.Constraint("Coincident", 7, 2, 8, 1),
    Sketcher.Constraint("Coincident", 8, 2, 9, 1),
    Sketcher.Constraint("Coincident", 9, 2, 0, 1),
    Sketcher.Constraint("Horizontal", 0),
    Sketcher.Constraint("Vertical", 1),
    Sketcher.Constraint("Horizontal", 2),
    Sketcher.Constraint("Vertical", 3),
    Sketcher.Constraint("Horizontal", 4),
    Sketcher.Constraint("Vertical", 5),
    Sketcher.Constraint("Horizontal", 6),
    Sketcher.Constraint("Vertical", 7),
    Sketcher.Constraint("Horizontal", 8),
    Sketcher.Constraint("Vertical", 9),
    Sketcher.Constraint("Vertical", 10),
    Sketcher.Constraint("Coincident", 10, 1, 3, 2),
    Sketcher.Constraint("Horizontal", 2, 2, 5, 2),
    Sketcher.Constraint("Horizontal", 9, 2, 10, 2),
    Sketcher.Constraint("Equal", 6, 1),
    Sketcher.Constraint("DistanceX", 0, 1, 0, 2, 11.0),
    Sketcher.Constraint("DistanceX", 2, 1, 2, 2, 4.0),
    Sketcher.Constraint("DistanceX", 4, 2, 4, 1, 40.0),
    Sketcher.Constraint("DistanceX", 6, 1, 6, 2, 30.0),
    Sketcher.Constraint("DistanceY", 3, 1, 3, 2, 200.0),
    Sketcher.Constraint("DistanceY", 7, 2, 7, 1, 20.0),
    Sketcher.Constraint("DistanceX", 0, 2, -1, 1, 326.016799),
    Sketcher.Constraint("DistanceY", 0, 2, -1, 1, 149.796396),
])
revolution = doc.addObject("PartDesign::Revolution", "Revolution")
body12.addObject(revolution)
revolution.Profile = sketch13
revolution.ReferenceAxis = (sketch13, ["Axis0"])
revolution.Angle = 360
body13 = doc.addObject("PartDesign::Body", "Body012")

# Sketch on XZ plane
sketch14 = doc.addObject("Sketcher::SketchObject", "Sketch013")
body13.addObject(sketch14)
sketch14.AttachmentSupport = (doc.getObject("XZ_Plane012"), [""])
sketch14.MapMode = "FlatFace"
sketch14.addGeometry(Part.Circle(Vector(0, 154.6, 0), Vector(0, 0, 1), 4), False)
sketch14.addConstraint([
    Sketcher.Constraint("PointOnObject", 0, 3, -2),
    Sketcher.Constraint("Diameter", 0, 8.0),
    Sketcher.Constraint("DistanceY", -1, 1, 0, 3, 154.57424),
])
pad13 = doc.addObject("PartDesign::Pad", "Pad012")
body13.addObject(pad13)
pad13.Profile = sketch14
pad13.Length = 70
mirroring.Visibility = False

doc.recompute()
